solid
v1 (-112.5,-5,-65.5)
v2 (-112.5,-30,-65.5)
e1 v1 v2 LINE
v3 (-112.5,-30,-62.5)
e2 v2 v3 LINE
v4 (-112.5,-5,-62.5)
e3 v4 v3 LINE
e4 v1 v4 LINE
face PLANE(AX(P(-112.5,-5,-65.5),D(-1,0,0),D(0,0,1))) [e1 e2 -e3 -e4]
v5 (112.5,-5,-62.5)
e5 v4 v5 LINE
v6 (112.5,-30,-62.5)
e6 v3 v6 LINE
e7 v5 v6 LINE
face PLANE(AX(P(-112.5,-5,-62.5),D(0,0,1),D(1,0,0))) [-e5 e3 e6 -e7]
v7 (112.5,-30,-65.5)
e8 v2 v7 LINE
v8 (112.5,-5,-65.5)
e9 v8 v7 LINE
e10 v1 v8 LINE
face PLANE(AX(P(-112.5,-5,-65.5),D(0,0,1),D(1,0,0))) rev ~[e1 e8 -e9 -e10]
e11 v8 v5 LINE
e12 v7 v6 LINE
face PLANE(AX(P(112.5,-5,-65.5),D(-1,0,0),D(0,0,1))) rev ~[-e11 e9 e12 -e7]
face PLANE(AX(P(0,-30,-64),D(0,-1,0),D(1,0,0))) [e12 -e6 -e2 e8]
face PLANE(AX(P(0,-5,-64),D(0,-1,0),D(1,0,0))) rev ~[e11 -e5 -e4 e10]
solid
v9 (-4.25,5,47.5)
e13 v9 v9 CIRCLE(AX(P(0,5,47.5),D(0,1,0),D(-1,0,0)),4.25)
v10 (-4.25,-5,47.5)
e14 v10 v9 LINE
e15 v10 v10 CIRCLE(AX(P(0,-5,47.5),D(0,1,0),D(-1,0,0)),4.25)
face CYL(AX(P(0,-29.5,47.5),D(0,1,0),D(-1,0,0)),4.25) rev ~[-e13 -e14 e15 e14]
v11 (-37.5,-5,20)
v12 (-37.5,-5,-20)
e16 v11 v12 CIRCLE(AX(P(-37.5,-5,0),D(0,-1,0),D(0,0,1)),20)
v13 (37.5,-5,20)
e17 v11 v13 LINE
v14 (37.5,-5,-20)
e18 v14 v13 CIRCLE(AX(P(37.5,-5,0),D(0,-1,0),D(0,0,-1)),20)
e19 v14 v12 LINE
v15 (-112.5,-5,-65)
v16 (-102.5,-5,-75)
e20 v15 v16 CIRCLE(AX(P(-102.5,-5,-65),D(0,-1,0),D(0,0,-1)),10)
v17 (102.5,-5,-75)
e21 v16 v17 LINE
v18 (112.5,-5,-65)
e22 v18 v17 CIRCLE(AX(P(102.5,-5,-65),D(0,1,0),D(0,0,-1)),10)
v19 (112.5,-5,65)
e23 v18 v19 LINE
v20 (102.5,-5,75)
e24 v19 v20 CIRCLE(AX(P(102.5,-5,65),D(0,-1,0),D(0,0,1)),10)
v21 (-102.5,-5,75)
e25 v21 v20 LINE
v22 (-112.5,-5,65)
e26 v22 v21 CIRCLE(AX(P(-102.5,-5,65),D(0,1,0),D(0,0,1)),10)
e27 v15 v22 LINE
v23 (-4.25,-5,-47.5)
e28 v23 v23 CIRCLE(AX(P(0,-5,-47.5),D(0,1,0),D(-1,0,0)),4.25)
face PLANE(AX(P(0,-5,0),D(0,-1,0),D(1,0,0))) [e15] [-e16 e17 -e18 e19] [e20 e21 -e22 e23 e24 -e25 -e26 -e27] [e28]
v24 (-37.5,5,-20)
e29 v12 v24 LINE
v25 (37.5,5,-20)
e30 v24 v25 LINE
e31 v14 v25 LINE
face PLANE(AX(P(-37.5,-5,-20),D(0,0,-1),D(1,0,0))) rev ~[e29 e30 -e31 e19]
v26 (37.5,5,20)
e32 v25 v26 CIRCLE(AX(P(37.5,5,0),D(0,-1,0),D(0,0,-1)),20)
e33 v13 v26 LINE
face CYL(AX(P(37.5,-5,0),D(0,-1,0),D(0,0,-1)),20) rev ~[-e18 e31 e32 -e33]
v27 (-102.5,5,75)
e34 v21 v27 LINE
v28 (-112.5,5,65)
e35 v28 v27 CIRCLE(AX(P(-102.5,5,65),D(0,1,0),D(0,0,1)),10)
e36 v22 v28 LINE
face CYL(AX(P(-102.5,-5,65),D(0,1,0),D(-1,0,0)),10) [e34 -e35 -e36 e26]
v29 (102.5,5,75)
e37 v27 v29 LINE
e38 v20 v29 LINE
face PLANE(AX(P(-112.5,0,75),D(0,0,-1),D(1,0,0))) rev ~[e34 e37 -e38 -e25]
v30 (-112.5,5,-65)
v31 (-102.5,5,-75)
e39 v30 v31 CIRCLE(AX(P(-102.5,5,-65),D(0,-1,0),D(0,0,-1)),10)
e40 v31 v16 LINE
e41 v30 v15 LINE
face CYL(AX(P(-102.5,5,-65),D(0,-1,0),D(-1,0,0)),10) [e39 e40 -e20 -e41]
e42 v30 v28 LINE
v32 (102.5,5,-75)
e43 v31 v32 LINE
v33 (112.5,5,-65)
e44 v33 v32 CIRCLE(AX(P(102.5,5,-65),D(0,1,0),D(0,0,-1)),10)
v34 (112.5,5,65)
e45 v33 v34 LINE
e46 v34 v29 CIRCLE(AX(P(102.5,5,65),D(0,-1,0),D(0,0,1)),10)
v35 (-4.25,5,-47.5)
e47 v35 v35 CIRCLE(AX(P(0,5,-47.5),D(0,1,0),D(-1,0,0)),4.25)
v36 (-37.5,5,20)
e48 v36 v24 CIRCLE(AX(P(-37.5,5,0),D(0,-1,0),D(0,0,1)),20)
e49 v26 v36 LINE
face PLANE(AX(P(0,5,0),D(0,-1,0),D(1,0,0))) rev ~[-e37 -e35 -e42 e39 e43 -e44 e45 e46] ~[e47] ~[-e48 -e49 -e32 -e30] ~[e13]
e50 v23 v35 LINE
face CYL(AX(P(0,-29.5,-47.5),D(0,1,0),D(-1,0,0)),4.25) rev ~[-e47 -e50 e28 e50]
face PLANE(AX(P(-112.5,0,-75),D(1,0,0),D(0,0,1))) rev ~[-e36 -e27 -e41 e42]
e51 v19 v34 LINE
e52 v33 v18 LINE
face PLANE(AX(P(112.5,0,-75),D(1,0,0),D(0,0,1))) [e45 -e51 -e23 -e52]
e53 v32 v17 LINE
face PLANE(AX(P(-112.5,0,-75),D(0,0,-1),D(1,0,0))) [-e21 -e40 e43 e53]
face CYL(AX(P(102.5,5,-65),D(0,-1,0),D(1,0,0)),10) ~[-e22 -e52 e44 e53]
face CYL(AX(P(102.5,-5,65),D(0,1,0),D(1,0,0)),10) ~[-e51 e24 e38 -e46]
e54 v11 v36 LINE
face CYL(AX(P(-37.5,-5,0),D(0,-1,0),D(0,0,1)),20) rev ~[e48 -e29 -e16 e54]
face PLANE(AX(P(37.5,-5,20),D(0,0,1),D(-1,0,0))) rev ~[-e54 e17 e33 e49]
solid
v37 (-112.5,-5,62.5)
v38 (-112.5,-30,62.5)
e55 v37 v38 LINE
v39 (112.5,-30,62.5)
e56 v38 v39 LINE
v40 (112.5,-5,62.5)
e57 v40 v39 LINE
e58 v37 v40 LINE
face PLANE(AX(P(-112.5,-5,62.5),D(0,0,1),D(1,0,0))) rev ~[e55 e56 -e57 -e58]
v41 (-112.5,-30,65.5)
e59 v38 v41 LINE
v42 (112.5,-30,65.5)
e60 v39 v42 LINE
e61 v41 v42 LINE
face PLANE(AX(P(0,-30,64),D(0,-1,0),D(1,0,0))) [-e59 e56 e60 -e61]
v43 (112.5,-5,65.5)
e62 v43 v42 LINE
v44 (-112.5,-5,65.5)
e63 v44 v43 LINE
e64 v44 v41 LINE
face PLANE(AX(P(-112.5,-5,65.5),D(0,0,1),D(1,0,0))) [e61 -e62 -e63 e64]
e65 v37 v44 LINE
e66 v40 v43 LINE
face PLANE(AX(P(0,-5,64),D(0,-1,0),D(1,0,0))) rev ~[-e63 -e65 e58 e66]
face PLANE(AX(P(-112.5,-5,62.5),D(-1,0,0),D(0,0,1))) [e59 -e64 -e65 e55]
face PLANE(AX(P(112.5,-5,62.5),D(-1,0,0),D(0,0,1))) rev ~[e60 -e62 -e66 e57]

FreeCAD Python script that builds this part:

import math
import FreeCAD as App
import Part
import Sketcher

V = App.Vector


def edges_at(feature, points):
    """Names of the edges that pass closest to the given points."""
    edges = feature.Shape.Edges
    near = lambda p: min(range(len(edges)), key=lambda i: edges[i].distToShape(Part.Vertex(*p))[0])
    return sorted({f"Edge{near(p) + 1}" for p in points})

doc = App.newDocument("Part")
body = doc.addObject("PartDesign::Body", "Body")

# Sketch on XZ plane
sketch1 = body.newObject("Sketcher::SketchObject", "Sketch")
sketch1.AttachmentSupport = (doc.getObject("XZ_Plane"), [""])
sketch1.MapMode = "FlatFace"
sketch1.addGeometry(Part.LineSegment(V(-112, 75, 0), V(-112, -75, 0)), False)
sketch1.addGeometry(Part.LineSegment(V(-112, -75, 0), V(112, -75, 0)), False)
sketch1.addGeometry(Part.LineSegment(V(112, -75, 0), V(112, 75, 0)), False)
sketch1.addGeometry(Part.LineSegment(V(112, 75, 0), V(-112, 75, 0)), False)
sketch1.addGeometry(Part.Circle(V(0, 0, 0), V(0, 0, 1), 20), False)
sketch1.addConstraint(Sketcher.Constraint("Coincident", 0, 2, 1, 1))
sketch1.addConstraint(Sketcher.Constraint("Coincident", 1, 2, 2, 1))
sketch1.addConstraint(Sketcher.Constraint("Coincident", 2, 2, 3, 1))
sketch1.addConstraint(Sketcher.Constraint("Coincident", 3, 2, 0, 1))
sketch1.addConstraint(Sketcher.Constraint("Vertical", 0))
sketch1.addConstraint(Sketcher.Constraint("Horizontal", 1))
sketch1.addConstraint(Sketcher.Constraint("Vertical", 2))
sketch1.addConstraint(Sketcher.Constraint("Horizontal", 3))
sketch1.addConstraint(Sketcher.Constraint("Coincident", 4, 3, -1, 1))
sketch1.addConstraint(Sketcher.Constraint("Symmetric", 0, 2, 2, 2, -1, 1))
sketch1.addConstraint(Sketcher.Constraint("Diameter", 4, 40.0))
sketch1.addConstraint(Sketcher.Constraint("DistanceX", 1, 1, 1, 2, 225.0))
sketch1.addConstraint(Sketcher.Constraint("DistanceY", 0, 2, 0, 1, 150.0))
pad1 = body.newObject("PartDesign::Pad", "Pad")
pad1.Profile = sketch1
pad1.Length = 10
pad1.Midplane = True
doc.recompute()

fillet = body.newObject("PartDesign::Fillet", "Fillet")
fillet.Base = (pad1, edges_at(pad1, [
    (-112.5, 0, 75),
    (112.5, 0, 75),
    (112.5, 0, -75),
    (-112.5, 0, -75),
]))
fillet.Radius = 10

# Sketch on XZ plane
sketch2 = body.newObject("Sketcher::SketchObject", "Sketch001")
sketch2.AttachmentSupport = (doc.getObject("XZ_Plane"), [""])
sketch2.MapMode = "FlatFace"
sketch2.AttachmentOffset = App.Placement(V(0, 0, 5), App.Rotation())
sketch2.addGeometry(Part.ArcOfCircle(Part.Circle(V(-38, 0, 0), V(0, 0, 1), 20), math.radians(90), math.radians(270)), False)
sketch2.addGeometry(Part.LineSegment(V(-38, -20, 0), V(38, -20, 0)), False)
sketch2.addGeometry(Part.ArcOfCircle(Part.Circle(V(38, 0, 0), V(0, 0, 1), 20), math.radians(-90), math.radians(90)), False)
sketch2.addGeometry(Part.LineSegment(V(38, 20, 0), V(-38, 20, 0)), False)
sketch2.addConstraint(Sketcher.Constraint("Tangent", 0, 2, 1, 1))
sketch2.addConstraint(Sketcher.Constraint("Tangent", 1, 2, 2, 1))
sketch2.addConstraint(Sketcher.Constraint("Tangent", 2, 2, 3, 1))
sketch2.addConstraint(Sketcher.Constraint("Tangent", 3, 2, 0, 1))
sketch2.addConstraint(Sketcher.Constraint("Horizontal", 1))
sketch2.addConstraint(Sketcher.Constraint("Horizontal", 3))
sketch2.addConstraint(Sketcher.Constraint("Symmetric", 0, 3, 2, 3, -1, 1))
sketch2.addConstraint(Sketcher.Constraint("Radius", 0, 20.0))
sketch2.addConstraint(Sketcher.Constraint("DistanceX", 1, 1, 1, 2, 75.0))
pocket1 = body.newObject("PartDesign::Pocket", "Pocket")
pocket1.Profile = sketch2
pocket1.Type = "ThroughAll"

# Sketch on XZ plane
sketch3 = body.newObject("Sketcher::SketchObject", "Sketch002")
sketch3.AttachmentSupport = (doc.getObject("XZ_Plane"), [""])
sketch3.MapMode = "FlatFace"
sketch3.AttachmentOffset = App.Placement(V(0, 0, 5), App.Rotation())
sketch3.addGeometry(Part.Circle(V(0, 47.5, 0), V(0, 0, 1), 4.2), False)
sketch3.addGeometry(Part.Circle(V(0, -47.5, 0), V(0, 0, 1), 4.2), False)
sketch3.addConstraint(Sketcher.Constraint("Equal", 0, 1))
sketch3.addConstraint(Sketcher.Constraint("Symmetric", 0, 3, 1, 3, -1, 1))
sketch3.addConstraint(Sketcher.Constraint("PointOnObject", 0, 3, -2))
sketch3.addConstraint(Sketcher.Constraint("Diameter", 0, 8.5))
sketch3.addConstraint(Sketcher.Constraint("DistanceY", 1, 3, 0, 3, 95.0))
doc.recompute()
hole = body.newObject("PartDesign::Hole", "Hole")
hole.Profile = sketch3
hole.ThreadType = "None"
hole.Diameter = 8.5
hole.DepthType = "Dimension"
hole.Depth = 24.5
hole.DrillPoint = "Angled"
hole.DrillPointAngle = 118
body2 = doc.addObject("PartDesign::Body", "Body001")

# Sketch on XZ plane
sketch4 = body2.newObject("Sketcher::SketchObject", "Sketch003")
sketch4.AttachmentSupport = (doc.getObject("XZ_Plane001"), [""])
sketch4.MapMode = "FlatFace"
sketch4.AttachmentOffset = App.Placement(V(0, 0, 5), App.Rotation())
sketch4.addGeometry(Part.LineSegment(V(-112.5, 65.5, 0), V(-112.5, 62.5, 0)), False)
sketch4.addGeometry(Part.LineSegment(V(-112.5, 62.5, 0), V(112.5, 62.5, 0)), False)
sketch4.addGeometry(Part.LineSegment(V(112.5, 62.5, 0), V(112.5, 65.5, 0)), False)
sketch4.addGeometry(Part.LineSegment(V(112.5, 65.5, 0), V(-112.5, 65.5, 0)), False)
sketch4.addConstraint(Sketcher.Constraint("Coincident", 0, 2, 1, 1))
sketch4.addConstraint(Sketcher.Constraint("Coincident", 1, 2, 2, 1))
sketch4.addConstraint(Sketcher.Constraint("Coincident", 2, 2, 3, 1))
sketch4.addConstraint(Sketcher.Constraint("Coincident", 3, 2, 0, 1))
sketch4.addConstraint(Sketcher.Constraint("Vertical", 0))
sketch4.addConstraint(Sketcher.Constraint("Horizontal", 1))
sketch4.addConstraint(Sketcher.Constraint("Vertical", 2))
sketch4.addConstraint(Sketcher.Constraint("Horizontal", 3))
sketch4.addConstraint(Sketcher.Constraint("DistanceX", 1, 1, 1, 2, 225.0))
sketch4.addConstraint(Sketcher.Constraint("DistanceY", 0, 2, 0, 1, 3.0))
sketch4.addConstraint(Sketcher.Constraint("DistanceX", 0, 2, -1, 1, 112.5))
sketch4.addConstraint(Sketcher.Constraint("DistanceY", -1, 1, 0, 2, 62.5))
pad2 = body2.newObject("PartDesign::Pad", "Pad001")
pad2.Profile = sketch4
pad2.Length = 25
body3 = doc.addObject("PartDesign::Body", "Body002")

# Sketch on XZ plane
sketch5 = body3.newObject("Sketcher::SketchObject", "Sketch004")
sketch5.AttachmentSupport = (doc.getObject("XZ_Plane002"), [""])
sketch5.MapMode = "FlatFace"
sketch5.AttachmentOffset = App.Placement(V(0, 0, 5), App.Rotation())
sketch5.addGeometry(Part.LineSegment(V(-112.5, -62.5, 0), V(-112.5, -65.5, 0)), False)
sketch5.addGeometry(Part.LineSegment(V(-112.5, -65.5, 0), V(112.5, -65.5, 0)), False)
sketch5.addGeometry(Part.LineSegment(V(112.5, -65.5, 0), V(112.5, -62.5, 0)), False)
sketch5.addGeometry(Part.LineSegment(V(112.5, -62.5, 0), V(-112.5, -62.5, 0)), False)
sketch5.addConstraint(Sketcher.Constraint("Coincident", 0, 2, 1, 1))
sketch5.addConstraint(Sketcher.Constraint("Coincident", 1, 2, 2, 1))
sketch5.addConstraint(Sketcher.Constraint("Coincident", 2, 2, 3, 1))
sketch5.addConstraint(Sketcher.Constraint("Coincident", 3, 2, 0, 1))
sketch5.addConstraint(Sketcher.Constraint("Vertical", 0))
sketch5.addConstraint(Sketcher.Constraint("Horizontal", 1))
sketch5.addConstraint(Sketcher.Constraint("Vertical", 2))
sketch5.addConstraint(Sketcher.Constraint("Horizontal", 3))
sketch5.addConstraint(Sketcher.Constraint("DistanceX", 1, 1, 1, 2, 225.0))
sketch5.addConstraint(Sketcher.Constraint("DistanceY", 0, 2, 0, 1, 3.0))
sketch5.addConstraint(Sketcher.Constraint("DistanceX", 0, 2, -1, 1, 112.5))
sketch5.addConstraint(Sketcher.Constraint("DistanceY", 0, 2, -1, 1, 65.5))
pad3 = body3.newObject("PartDesign::Pad", "Pad002")
pad3.Profile = sketch5
pad3.Length = 25

doc.recompute()
